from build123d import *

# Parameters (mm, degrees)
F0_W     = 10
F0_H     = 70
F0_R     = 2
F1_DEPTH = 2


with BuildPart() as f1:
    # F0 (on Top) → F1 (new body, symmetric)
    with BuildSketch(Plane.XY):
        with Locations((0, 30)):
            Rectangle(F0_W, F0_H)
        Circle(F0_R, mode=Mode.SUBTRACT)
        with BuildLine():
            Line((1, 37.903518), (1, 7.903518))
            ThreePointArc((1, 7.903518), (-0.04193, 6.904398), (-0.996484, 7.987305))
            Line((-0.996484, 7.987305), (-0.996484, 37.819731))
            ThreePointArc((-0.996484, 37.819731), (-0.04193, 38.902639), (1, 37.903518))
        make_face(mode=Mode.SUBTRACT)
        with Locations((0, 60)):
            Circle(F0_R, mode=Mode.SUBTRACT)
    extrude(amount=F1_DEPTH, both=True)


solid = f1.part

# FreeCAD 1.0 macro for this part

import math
import FreeCAD as App
import Part
import Sketcher
Q = App.Units.Quantity

doc = App.newDocument("Part")
body = doc.addObject("PartDesign::Body", "Body")

# Sketch on XY plane
sketch1 = doc.addObject("Sketcher::SketchObject", "Sketch")
body.addObject(sketch1)
sketch1.AttachmentSupport = (doc.XY_Plane, [""])
sketch1.MapMode = "FlatFace"
sketch1.addGeometry(Part.LineSegment(App.Vector(-5, 65, 0), App.Vector(-5, -5, 0)), False)
sketch1.addGeometry(Part.LineSegment(App.Vector(-5, -5, 0), App.Vector(5, -5, 0)), False)
sketch1.addGeometry(Part.LineSegment(App.Vector(5, -5, 0), App.Vector(5, 65, 0)), False)
sketch1.addGeometry(Part.LineSegment(App.Vector(5, 65, 0), App.Vector(-5, 65, 0)), False)
sketch1.addGeometry(Part.ArcOfCircle(Part.Circle(App.Vector(0, 37.9, 0), App.Vector(0, 0, 1), 1), math.radians(0), math.radians(185)), False)
sketch1.addGeometry(Part.LineSegment(App.Vector(1, 37.9, 0), App.Vector(1, 7.9, 0)), False)
sketch1.addGeometry(Part.ArcOfCircle(Part.Circle(App.Vector(0, 7.9, 0), App.Vector(0, 0, 1), 1), math.radians(175), math.radians(360)), False)
sketch1.addGeometry(Part.LineSegment(App.Vector(-1, 8, 0), App.Vector(-1, 37.8, 0)), False)
sketch1.addGeometry(Part.Circle(App.Vector(0, 0, 0), App.Vector(0, 0, 1), 2), False)
sketch1.addGeometry(Part.Circle(App.Vector(0, 60, 0), App.Vector(0, 0, 1), 2), False)
sketch1.addConstraint(Sketcher.Constraint("Coincident", 0, 2, 1, 1))
sketch1.addConstraint(Sketcher.Constraint("Coincident", 1, 2, 2, 1))
sketch1.addConstraint(Sketcher.Constraint("Coincident", 2, 2, 3, 1))
sketch1.addConstraint(Sketcher.Constraint("Coincident", 3, 2, 0, 1))
sketch1.addConstraint(Sketcher.Constraint("Tangent", 4, 1, 5, 1))
sketch1.addConstraint(Sketcher.Constraint("Tangent", 5, 2, 6, 2))
sketch1.addConstraint(Sketcher.Constraint("Coincident", 6, 1, 7, 1))
sketch1.addConstraint(Sketcher.Constraint("Coincident", 7, 2, 4, 2))
sketch1.addConstraint(Sketcher.Constraint("Vertical", 0))
sketch1.addConstraint(Sketcher.Constraint("Horizontal", 1))
sketch1.addConstraint(Sketcher.Constraint("Vertical", 2))
sketch1.addConstraint(Sketcher.Constraint("Horizontal", 3))
sketch1.addConstraint(Sketcher.Constraint("Vertical", 5))
sketch1.addConstraint(Sketcher.Constraint("Vertical", 7))
sketch1.addConstraint(Sketcher.Constraint("Coincident", 8, 3, -1, 1))
sketch1.addConstraint(Sketcher.Constraint("Equal", 4, 6))
sketch1.addConstraint(Sketcher.Constraint("Equal", 8, 9))
sketch1.addConstraint(Sketcher.Constraint("PointOnObject", 4, 3, -2))
sketch1.addConstraint(Sketcher.Constraint("PointOnObject", 9, 3, -2))
sketch1.addConstraint(Sketcher.Constraint("Diameter", 8, Q("4 mm")))
sketch1.addConstraint(Sketcher.Constraint("Radius", 4, Q("1 mm")))
sketch1.addConstraint(Sketcher.Constraint("DistanceX", 1, 1, 1, 2, Q("10 mm")))
sketch1.addConstraint(Sketcher.Constraint("DistanceY", 0, 2, 0, 1, Q("70 mm")))
sketch1.addConstraint(Sketcher.Constraint("DistanceY", 5, 2, 5, 1, Q("30 mm")))
sketch1.addConstraint(Sketcher.Constraint("DistanceY", -1, 1, 9, 3, Q("60 mm")))
sketch1.addConstraint(Sketcher.Constraint("DistanceX", 0, 2, -1, 1, Q("5 mm")))
sketch1.addConstraint(Sketcher.Constraint("DistanceY", 0, 2, -1, 1, Q("5 mm")))
sketch1.addConstraint(Sketcher.Constraint("DistanceY", 7, 1, 7, 2, Q("29.832426 mm")))
sketch1.addConstraint(Sketcher.Constraint("DistanceY", -1, 1, 4, 3, Q("37.903518 mm")))
pad1 = doc.addObject("PartDesign::Pad", "Pad")
body.addObject(pad1)
pad1.Profile = sketch1
pad1.Length = 4
pad1.Midplane = True

doc.recompute()
